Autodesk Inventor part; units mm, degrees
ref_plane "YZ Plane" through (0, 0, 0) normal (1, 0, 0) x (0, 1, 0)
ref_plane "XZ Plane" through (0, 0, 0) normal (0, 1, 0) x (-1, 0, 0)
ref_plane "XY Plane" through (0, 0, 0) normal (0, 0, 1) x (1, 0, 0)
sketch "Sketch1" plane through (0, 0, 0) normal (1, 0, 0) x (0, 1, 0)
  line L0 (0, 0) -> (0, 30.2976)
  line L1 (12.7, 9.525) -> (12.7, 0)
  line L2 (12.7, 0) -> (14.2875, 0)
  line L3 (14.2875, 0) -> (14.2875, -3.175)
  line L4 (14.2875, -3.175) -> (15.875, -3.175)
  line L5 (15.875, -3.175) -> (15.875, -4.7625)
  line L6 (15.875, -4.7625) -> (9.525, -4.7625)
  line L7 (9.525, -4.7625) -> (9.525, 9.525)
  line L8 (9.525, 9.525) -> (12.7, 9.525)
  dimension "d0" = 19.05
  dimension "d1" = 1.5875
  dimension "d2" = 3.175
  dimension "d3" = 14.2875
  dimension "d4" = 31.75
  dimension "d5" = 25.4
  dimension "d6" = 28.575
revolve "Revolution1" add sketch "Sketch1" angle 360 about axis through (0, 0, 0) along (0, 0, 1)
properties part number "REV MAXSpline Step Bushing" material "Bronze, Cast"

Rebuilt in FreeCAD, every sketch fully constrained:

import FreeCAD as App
import Part
import Sketcher
from FreeCAD import Vector
Q = App.Units.Quantity


def add_polygon(sketch, points):
    """Adds a closed chain of lines whose ends are joined by coincident constraints."""
    first, n = sketch.GeometryCount, len(points)
    for a, b in zip(points, points[1:] + points[:1]):
        sketch.addGeometry(Part.LineSegment(App.Vector(*a, 0), App.Vector(*b, 0)), False)
    for i in range(n):
        sketch.addConstraint(Sketcher.Constraint("Coincident", first + i, 2, first + (i + 1) % n, 1))

doc = App.newDocument("Part")
body = doc.addObject("PartDesign::Body", "Body")

# Sketch on YZ plane
sketch1 = body.newObject("Sketcher::SketchObject", "Sketch")
sketch1.AttachmentSupport = (doc.getObject("YZ_Plane"), [""])
sketch1.MapMode = "FlatFace"
add_polygon(sketch1, [(12.7, 0), (12.7, 9.5), (9.5, 9.5), (9.5, -4.8), (15.9, -4.8), (15.9, -3.2), (14.3, -3.2), (14.3, 0)])  # lines 0-7
sketch1.addConstraint(Sketcher.Constraint("Vertical", 0))
sketch1.addConstraint(Sketcher.Constraint("Horizontal", 1))
sketch1.addConstraint(Sketcher.Constraint("Vertical", 2))
sketch1.addConstraint(Sketcher.Constraint("Horizontal", 3))
sketch1.addConstraint(Sketcher.Constraint("Vertical", 4))
sketch1.addConstraint(Sketcher.Constraint("Horizontal", 5))
sketch1.addConstraint(Sketcher.Constraint("Vertical", 6))
sketch1.addConstraint(Sketcher.Constraint("Horizontal", 7))
sketch1.addConstraint(Sketcher.Constraint("PointOnObject", 6, 2, -1))
sketch1.addConstraint(Sketcher.Constraint("Equal", 5, 7))
sketch1.addConstraint(Sketcher.Constraint("Equal", 7, 4))
sketch1.addConstraint(Sketcher.Constraint("Equal", 1, 6))
sketch1.addConstraint(Sketcher.Constraint("DistanceX", 1, 2, 1, 1, Q("0.125 in")))
sketch1.addConstraint(Sketcher.Constraint("DistanceX", 5, 2, 5, 1, Q("0.0625 in")))
sketch1.addConstraint(Sketcher.Constraint("DistanceY", 2, 2, 2, 1, Q("0.5625 in")))
sketch1.addConstraint(Sketcher.Constraint("DistanceX", -1, 1, 5, 2, Q("0.5625 in")))
revolution = body.newObject("PartDesign::Revolution", "Revolution")
revolution.Profile = sketch1
revolution.ReferenceAxis = (sketch1, ["V_Axis"])
revolution.Angle = 360

doc.recompute()
